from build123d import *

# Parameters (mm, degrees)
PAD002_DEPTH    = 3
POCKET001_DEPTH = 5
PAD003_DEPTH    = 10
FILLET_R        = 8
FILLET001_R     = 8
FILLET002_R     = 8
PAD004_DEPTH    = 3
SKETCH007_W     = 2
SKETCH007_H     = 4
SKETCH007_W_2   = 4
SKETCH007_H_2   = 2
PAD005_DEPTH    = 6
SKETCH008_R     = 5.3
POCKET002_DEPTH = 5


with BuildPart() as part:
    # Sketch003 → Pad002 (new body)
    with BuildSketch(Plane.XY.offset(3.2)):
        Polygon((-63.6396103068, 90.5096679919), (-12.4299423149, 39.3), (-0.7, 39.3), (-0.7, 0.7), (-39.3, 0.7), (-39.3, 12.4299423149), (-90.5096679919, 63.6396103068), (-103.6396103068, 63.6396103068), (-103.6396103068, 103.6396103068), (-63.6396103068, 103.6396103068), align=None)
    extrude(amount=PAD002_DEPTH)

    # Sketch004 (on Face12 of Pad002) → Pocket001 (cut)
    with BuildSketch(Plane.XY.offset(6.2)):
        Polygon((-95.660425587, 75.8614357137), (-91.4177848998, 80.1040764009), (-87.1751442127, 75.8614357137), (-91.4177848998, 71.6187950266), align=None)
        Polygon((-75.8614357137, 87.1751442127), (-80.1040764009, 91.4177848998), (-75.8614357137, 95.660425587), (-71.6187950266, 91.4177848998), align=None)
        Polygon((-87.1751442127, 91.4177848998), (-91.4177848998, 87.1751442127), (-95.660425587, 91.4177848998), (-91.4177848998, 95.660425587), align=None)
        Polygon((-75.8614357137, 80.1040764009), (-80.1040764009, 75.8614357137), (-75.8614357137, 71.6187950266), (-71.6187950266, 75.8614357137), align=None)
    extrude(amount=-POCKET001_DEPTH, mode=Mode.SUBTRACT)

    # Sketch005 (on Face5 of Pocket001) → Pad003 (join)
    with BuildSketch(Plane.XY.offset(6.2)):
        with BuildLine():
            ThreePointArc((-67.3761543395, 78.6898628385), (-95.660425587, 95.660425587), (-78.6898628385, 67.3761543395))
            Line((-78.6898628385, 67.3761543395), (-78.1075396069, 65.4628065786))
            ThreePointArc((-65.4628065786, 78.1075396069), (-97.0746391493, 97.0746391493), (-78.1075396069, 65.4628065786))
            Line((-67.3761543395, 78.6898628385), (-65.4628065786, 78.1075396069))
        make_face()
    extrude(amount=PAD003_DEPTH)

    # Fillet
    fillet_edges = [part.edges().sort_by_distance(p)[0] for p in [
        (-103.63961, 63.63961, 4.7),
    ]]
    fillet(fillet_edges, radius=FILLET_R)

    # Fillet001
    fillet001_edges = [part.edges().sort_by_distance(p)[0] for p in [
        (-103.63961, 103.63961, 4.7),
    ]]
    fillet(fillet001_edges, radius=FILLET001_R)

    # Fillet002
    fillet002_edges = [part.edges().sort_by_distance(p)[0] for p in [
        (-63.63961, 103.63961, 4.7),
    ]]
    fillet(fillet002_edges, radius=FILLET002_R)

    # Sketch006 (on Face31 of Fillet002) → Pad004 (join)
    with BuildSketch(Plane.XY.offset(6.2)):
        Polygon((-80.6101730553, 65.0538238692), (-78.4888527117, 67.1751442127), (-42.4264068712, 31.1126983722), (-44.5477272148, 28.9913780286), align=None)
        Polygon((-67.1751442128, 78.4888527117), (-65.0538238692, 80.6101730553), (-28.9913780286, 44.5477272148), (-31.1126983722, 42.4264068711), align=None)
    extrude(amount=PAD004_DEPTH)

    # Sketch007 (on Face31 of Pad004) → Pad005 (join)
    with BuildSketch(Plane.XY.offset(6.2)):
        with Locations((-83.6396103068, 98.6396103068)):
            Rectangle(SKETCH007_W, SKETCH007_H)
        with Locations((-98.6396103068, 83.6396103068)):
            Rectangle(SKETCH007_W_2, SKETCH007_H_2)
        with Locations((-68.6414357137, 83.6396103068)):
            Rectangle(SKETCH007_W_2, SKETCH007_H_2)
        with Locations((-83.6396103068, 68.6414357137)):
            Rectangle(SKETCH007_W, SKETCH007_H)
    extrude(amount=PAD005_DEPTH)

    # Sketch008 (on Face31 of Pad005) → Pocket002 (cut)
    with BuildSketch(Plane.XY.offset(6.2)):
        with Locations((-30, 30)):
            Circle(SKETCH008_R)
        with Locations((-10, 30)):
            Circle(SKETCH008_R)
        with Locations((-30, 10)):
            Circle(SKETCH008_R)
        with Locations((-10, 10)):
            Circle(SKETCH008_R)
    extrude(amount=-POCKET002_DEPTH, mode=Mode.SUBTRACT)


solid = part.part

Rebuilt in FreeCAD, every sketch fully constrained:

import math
import FreeCAD as App
import Part
import Sketcher
Q = App.Units.Quantity


def edges_at(feature, points):
    """Names of the edges that pass closest to the given points."""
    edges = feature.Shape.Edges
    near = lambda p: min(range(len(edges)), key=lambda i: edges[i].distToShape(Part.Vertex(*p))[0])
    return sorted({f"Edge{near(p) + 1}" for p in points})

doc = App.newDocument("Part")
body = doc.addObject("PartDesign::Body", "Body")

# Sketch on XY plane
sketch1 = body.newObject("Sketcher::SketchObject", "Sketch")
sketch1.AttachmentSupport = (doc.getObject("XY_Plane"), [""])
sketch1.MapMode = "FlatFace"
sketch1.AttachmentOffset = App.Placement(App.Vector(0, 0, 3.2), App.Rotation())
sketch1.addGeometry([
    Part.LineSegment(App.Vector(-12, 39, 0), App.Vector(-64, 91, 0)),  # 0
    Part.LineSegment(App.Vector(-64, 91, 0), App.Vector(-64, 104, 0)),  # 1
    Part.LineSegment(App.Vector(-64, 104, 0), App.Vector(-104, 104, 0)),  # 2
    Part.LineSegment(App.Vector(-104, 104, 0), App.Vector(-104, 64, 0)),  # 3
    Part.LineSegment(App.Vector(-104, 64, 0), App.Vector(-91, 64, 0)),  # 4
    Part.LineSegment(App.Vector(-91, 64, 0), App.Vector(-39, 12, 0)),  # 5
    Part.LineSegment(App.Vector(-39, 12, 0), App.Vector(-39, 1, 0)),  # 6
    Part.LineSegment(App.Vector(-39, 1, 0), App.Vector(-1, 1, 0)),  # 7
    Part.LineSegment(App.Vector(-1, 1, 0), App.Vector(-1, 39, 0)),  # 8
    Part.LineSegment(App.Vector(-1, 39, 0), App.Vector(-12, 39, 0)),  # 9
], False)
sketch1.addConstraint([
    Sketcher.Constraint("Coincident", 0, 2, 1, 1),
    Sketcher.Constraint("Coincident", 1, 2, 2, 1),
    Sketcher.Constraint("Coincident", 2, 2, 3, 1),
    Sketcher.Constraint("Coincident", 3, 2, 4, 1),
    Sketcher.Constraint("Coincident", 4, 2, 5, 1),
    Sketcher.Constraint("Coincident", 5, 2, 6, 1),
    Sketcher.Constraint("Coincident", 6, 2, 7, 1),
    Sketcher.Constraint("Coincident", 7, 2, 8, 1),
    Sketcher.Constraint("Coincident", 8, 2, 9, 1),
    Sketcher.Constraint("Coincident", 9, 2, 0, 1),
    Sketcher.Constraint("Vertical", 1),
    Sketcher.Constraint("Horizontal", 2),
    Sketcher.Constraint("Vertical", 3),
    Sketcher.Constraint("Horizontal", 4),
    Sketcher.Constraint("Vertical", 6),
    Sketcher.Constraint("Horizontal", 7),
    Sketcher.Constraint("Vertical", 8),
    Sketcher.Constraint("Horizontal", 9),
    Sketcher.Constraint("Parallel", 0, 5),
    Sketcher.Constraint("Equal", 4, 1),
    Sketcher.Constraint("Equal", 2, 3),
    Sketcher.Constraint("Equal", 9, 6),
    Sketcher.Constraint("Equal", 7, 8),
    Sketcher.Constraint("DistanceX", 2, 2, 2, 1, Q("40 mm")),
    Sketcher.Constraint("Angle", 0, Q("135 deg")),
    Sketcher.Constraint("DistanceX", 7, 1, 7, 2, Q("38.6 mm")),
    Sketcher.Constraint("DistanceX", 5, 2, -1, 1, Q("39.3 mm")),
    Sketcher.Constraint("DistanceY", -1, 1, 6, 2, Q("0.7 mm")),
    Sketcher.Constraint("DistanceX", 4, 1, 4, 2, Q("13.129942 mm")),
    Sketcher.Constraint("DistanceX", 0, 2, -1, 1, Q("63.63961 mm")),
])
pad1 = body.newObject("PartDesign::Pad", "Pad")
pad1.Profile = sketch1
pad1.Length = 3

# Sketch on XY plane
sketch2 = body.newObject("Sketcher::SketchObject", "Sketch001")
sketch2.AttachmentSupport = (doc.getObject("XY_Plane"), [""])
sketch2.MapMode = "FlatFace"
sketch2.AttachmentOffset = App.Placement(App.Vector(0, 0, 6.2), App.Rotation())
sketch2.addGeometry([
    Part.LineSegment(App.Vector(-91, 80, 0), App.Vector(-96, 76, 0)),  # 0
    Part.LineSegment(App.Vector(-96, 76, 0), App.Vector(-91, 72, 0)),  # 1
    Part.LineSegment(App.Vector(-91, 72, 0), App.Vector(-87, 76, 0)),  # 2
    Part.LineSegment(App.Vector(-87, 76, 0), App.Vector(-91, 80, 0)),  # 3
    Part.LineSegment(App.Vector(-80, 91, 0), App.Vector(-76, 87, 0)),  # 4
    Part.LineSegment(App.Vector(-76, 87, 0), App.Vector(-72, 91, 0)),  # 5
    Part.LineSegment(App.Vector(-72, 91, 0), App.Vector(-76, 96, 0)),  # 6
    Part.LineSegment(App.Vector(-76, 96, 0), App.Vector(-80, 91, 0)),  # 7
    Part.LineSegment(App.Vector(-91, 87, 0), App.Vector(-87, 91, 0)),  # 8
    Part.LineSegment(App.Vector(-87, 91, 0), App.Vector(-91, 96, 0)),  # 9
    Part.LineSegment(App.Vector(-91, 96, 0), App.Vector(-96, 91, 0)),  # 10
    Part.LineSegment(App.Vector(-96, 91, 0), App.Vector(-91, 87, 0)),  # 11
    Part.LineSegment(App.Vector(-76, 80, 0), App.Vector(-80, 76, 0)),  # 12
    Part.LineSegment(App.Vector(-80, 76, 0), App.Vector(-76, 72, 0)),  # 13
    Part.LineSegment(App.Vector(-76, 72, 0), App.Vector(-72, 76, 0)),  # 14
    Part.LineSegment(App.Vector(-72, 76, 0), App.Vector(-76, 80, 0)),  # 15
], False)
sketch2.addConstraint([
    Sketcher.Constraint("Coincident", 0, 2, 1, 1),
    Sketcher.Constraint("Coincident", 1, 2, 2, 1),
    Sketcher.Constraint("Coincident", 2, 2, 3, 1),
    Sketcher.Constraint("Coincident", 3, 2, 0, 1),
    Sketcher.Constraint("Coincident", 4, 2, 5, 1),
    Sketcher.Constraint("Coincident", 5, 2, 6, 1),
    Sketcher.Constraint("Coincident", 6, 2, 7, 1),
    Sketcher.Constraint("Coincident", 7, 2, 4, 1),
    Sketcher.Constraint("Coincident", 8, 2, 9, 1),
    Sketcher.Constraint("Coincident", 9, 2, 10, 1),
    Sketcher.Constraint("Coincident", 10, 2, 11, 1),
    Sketcher.Constraint("Coincident", 11, 2, 8, 1),
    Sketcher.Constraint("Coincident", 12, 2, 13, 1),
    Sketcher.Constraint("Coincident", 13, 2, 14, 1),
    Sketcher.Constraint("Coincident", 14, 2, 15, 1),
    Sketcher.Constraint("Coincident", 15, 2, 12, 1),
    Sketcher.Constraint("Perpendicular", 0, 1),
    Sketcher.Constraint("Perpendicular", 1, 2),
    Sketcher.Constraint("Perpendicular", 2, 3),
    Sketcher.Constraint("Parallel", 3, 4),
    Sketcher.Constraint("Perpendicular", 4, 5),
    Sketcher.Constraint("Perpendicular", 5, 6),
    Sketcher.Constraint("Perpendicular", 6, 7),
    Sketcher.Constraint("Parallel", 7, 8),
    Sketcher.Constraint("Perpendicular", 8, 9),
    Sketcher.Constraint("Perpendicular", 9, 10),
    Sketcher.Constraint("Perpendicular", 10, 11),
    Sketcher.Constraint("Perpendicular", 11, 12),
    Sketcher.Constraint("Perpendicular", 12, 13),
    Sketcher.Constraint("Perpendicular", 13, 14),
    Sketcher.Constraint("Perpendicular", 14, 15),
    Sketcher.Constraint("Horizontal", 0, 2, 2, 2),
    Sketcher.Constraint("Horizontal", 5, 2, 7, 2),
    Sketcher.Constraint("Horizontal", 7, 2, 8, 2),
    Sketcher.Constraint("Horizontal", 6, 2, 9, 2),
    Sketcher.Constraint("Horizontal", 8, 2, 10, 2),
    Sketcher.Constraint("Horizontal", 2, 2, 12, 2),
    Sketcher.Constraint("Horizontal", 1, 2, 13, 2),
    Sketcher.Constraint("Horizontal", 12, 2, 14, 2),
    Sketcher.Constraint("Vertical", 1, 2, 3, 2),
    Sketcher.Constraint("Vertical", 2, 2, 8, 2),
    Sketcher.Constraint("Vertical", 3, 2, 9, 2),
    Sketcher.Constraint("Vertical", 7, 2, 12, 2),
    Sketcher.Constraint("Distance", 0, Q("6 mm")),
    Sketcher.Constraint("DistanceX", 2, 2, 4, 2, Q("11.313708 mm")),
    Sketcher.Constraint("DistanceY", 2, 2, 4, 2, Q("11.313708 mm")),
    Sketcher.Constraint("DistanceX", 0, 2, -1, 1, Q("95.660426 mm")),
    Sketcher.Constraint("DistanceY", -1, 1, 0, 2, Q("75.861436 mm")),
])
pocket1 = body.newObject("PartDesign::Pocket", "Pocket")
pocket1.Profile = sketch2
pocket1.Length = 5

# Sketch on XY plane
sketch3 = body.newObject("Sketcher::SketchObject", "Sketch002")
sketch3.AttachmentSupport = (doc.getObject("XY_Plane"), [""])
sketch3.MapMode = "FlatFace"
sketch3.AttachmentOffset = App.Placement(App.Vector(0, 0, 6.2), App.Rotation())
sketch3.addGeometry([
    Part.ArcOfCircle(Part.Circle(App.Vector(-83.6, 83.6, 0), App.Vector(0, 0, 1), 17), math.radians(-17), math.radians(287)),
    Part.LineSegment(App.Vector(-67.4, 78.7, 0), App.Vector(-65.5, 78.1, 0)),
    Part.ArcOfCircle(Part.Circle(App.Vector(-83.6, 83.6, 0), App.Vector(0, 0, 1), 19), math.radians(-17), math.radians(287)),
    Part.LineSegment(App.Vector(-78.1, 65.5, 0), App.Vector(-78.7, 67.4, 0)),
], False)
sketch3.addConstraint([
    Sketcher.Constraint("Coincident", 0, 1, 1, 1),
    Sketcher.Constraint("Coincident", 1, 2, 2, 1),
    Sketcher.Constraint("Coincident", 2, 2, 3, 1),
    Sketcher.Constraint("Coincident", 3, 2, 0, 2),
    Sketcher.Constraint("Coincident", 2, 3, 0, 3),
    Sketcher.Constraint("Radius", 0, Q("17 mm")),
    Sketcher.Constraint("Radius", 2, Q("19 mm")),
    Sketcher.Constraint("DistanceX", 0, 3, -1, 1, Q("83.63961 mm")),
    Sketcher.Constraint("DistanceY", -1, 1, 0, 3, Q("83.63961 mm")),
    Sketcher.Constraint("DistanceY", -1, 1, 1, 2, Q("78.10754 mm")),
    Sketcher.Constraint("DistanceX", 2, 2, -1, 1, Q("78.10754 mm")),
    Sketcher.Constraint("DistanceX", 3, 2, 0, 1, Q("11.313708 mm")),
    Sketcher.Constraint("DistanceY", 3, 2, 0, 1, Q("11.313708 mm")),
])
pad2 = body.newObject("PartDesign::Pad", "Pad001")
pad2.Profile = sketch3
pad2.Length = 10
doc.recompute()

fillet = body.newObject("PartDesign::Fillet", "Fillet")
fillet.Base = (pad2, edges_at(pad2, [(-103.64, 63.64, 4.7)]))
fillet.Radius = 8
doc.recompute()

fillet2 = body.newObject("PartDesign::Fillet", "Fillet001")
fillet2.Base = (fillet, edges_at(fillet, [(-103.64, 103.64, 4.7)]))
fillet2.Radius = 8
doc.recompute()

fillet3 = body.newObject("PartDesign::Fillet", "Fillet002")
fillet3.Base = (fillet2, edges_at(fillet2, [(-63.64, 103.64, 4.7)]))
fillet3.Radius = 8

# Sketch on XY plane
sketch4 = body.newObject("Sketcher::SketchObject", "Sketch003")
sketch4.AttachmentSupport = (doc.getObject("XY_Plane"), [""])
sketch4.MapMode = "FlatFace"
sketch4.AttachmentOffset = App.Placement(App.Vector(0, 0, 6.2), App.Rotation())
sketch4.addGeometry([
    Part.LineSegment(App.Vector(-78.5, 67.2, 0), App.Vector(-80.6, 65.1, 0)),  # 0
    Part.LineSegment(App.Vector(-80.6, 65.1, 0), App.Vector(-44.5, 29, 0)),  # 1
    Part.LineSegment(App.Vector(-44.5, 29, 0), App.Vector(-42.4, 31.1, 0)),  # 2
    Part.LineSegment(App.Vector(-42.4, 31.1, 0), App.Vector(-78.5, 67.2, 0)),  # 3
    Part.LineSegment(App.Vector(-65.1, 80.6, 0), App.Vector(-67.2, 78.5, 0)),  # 4
    Part.LineSegment(App.Vector(-67.2, 78.5, 0), App.Vector(-31.1, 42.4, 0)),  # 5
    Part.LineSegment(App.Vector(-31.1, 42.4, 0), App.Vector(-29, 44.5, 0)),  # 6
    Part.LineSegment(App.Vector(-29, 44.5, 0), App.Vector(-65.1, 80.6, 0)),  # 7
], False)
sketch4.addConstraint([
    Sketcher.Constraint("Coincident", 0, 2, 1, 1),
    Sketcher.Constraint("Coincident", 1, 2, 2, 1),
    Sketcher.Constraint("Coincident", 2, 2, 3, 1),
    Sketcher.Constraint("Coincident", 3, 2, 0, 1),
    Sketcher.Constraint("Coincident", 4, 2, 5, 1),
    Sketcher.Constraint("Coincident", 5, 2, 6, 1),
    Sketcher.Constraint("Coincident", 6, 2, 7, 1),
    Sketcher.Constraint("Coincident", 7, 2, 4, 1),
    Sketcher.Constraint("Perpendicular", 0, 1),
    Sketcher.Constraint("Perpendicular", 1, 2),
    Sketcher.Constraint("Perpendicular", 2, 3),
    Sketcher.Constraint("Perpendicular", 3, 4),
    Sketcher.Constraint("Perpendicular", 4, 5),
    Sketcher.Constraint("Perpendicular", 5, 6),
    Sketcher.Constraint("Perpendicular", 6, 7),
    Sketcher.Constraint("Equal", 2, 4),
    Sketcher.Constraint("Equal", 3, 5),
    Sketcher.Constraint("Angle", 0, Q("-135 deg")),
    Sketcher.Constraint("Distance", 0, Q("3 mm")),
    Sketcher.Constraint("Distance", 1, Q("51 mm")),
    Sketcher.Constraint("DistanceY", -1, 1, 2, 2, Q("31.112698 mm")),
    Sketcher.Constraint("DistanceX", 5, 2, -1, 1, Q("31.112698 mm")),
    Sketcher.Constraint("DistanceX", 3, 2, 4, 2, Q("11.313708 mm")),
    Sketcher.Constraint("DistanceY", 3, 2, 4, 2, Q("11.313708 mm")),
])
pad3 = body.newObject("PartDesign::Pad", "Pad002")
pad3.Profile = sketch4
pad3.Length = 3

# Sketch on XY plane
sketch5 = body.newObject("Sketcher::SketchObject", "Sketch004")
sketch5.AttachmentSupport = (doc.getObject("XY_Plane"), [""])
sketch5.MapMode = "FlatFace"
sketch5.AttachmentOffset = App.Placement(App.Vector(0, 0, 6.2), App.Rotation())
sketch5.addGeometry([
    Part.LineSegment(App.Vector(-84.6, 100.6, 0), App.Vector(-84.6, 96.6, 0)),  # 0
    Part.LineSegment(App.Vector(-84.6, 96.6, 0), App.Vector(-82.6, 96.6, 0)),  # 1
    Part.LineSegment(App.Vector(-82.6, 96.6, 0), App.Vector(-82.6, 100.6, 0)),  # 2
    Part.LineSegment(App.Vector(-82.6, 100.6, 0), App.Vector(-84.6, 100.6, 0)),  # 3
    Part.LineSegment(App.Vector(-100.6, 84.6, 0), App.Vector(-100.6, 82.6, 0)),  # 4
    Part.LineSegment(App.Vector(-100.6, 82.6, 0), App.Vector(-96.6, 82.6, 0)),  # 5
    Part.LineSegment(App.Vector(-96.6, 82.6, 0), App.Vector(-96.6, 84.6, 0)),  # 6
    Part.LineSegment(App.Vector(-96.6, 84.6, 0), App.Vector(-100.6, 84.6, 0)),  # 7
    Part.LineSegment(App.Vector(-70.6, 84.6, 0), App.Vector(-70.6, 82.6, 0)),  # 8
    Part.LineSegment(App.Vector(-70.6, 82.6, 0), App.Vector(-66.6, 82.6, 0)),  # 9
    Part.LineSegment(App.Vector(-66.6, 82.6, 0), App.Vector(-66.6, 84.6, 0)),  # 10
    Part.LineSegment(App.Vector(-66.6, 84.6, 0), App.Vector(-70.6, 84.6, 0)),  # 11
    Part.LineSegment(App.Vector(-84.6, 70.6, 0), App.Vector(-84.6, 66.6, 0)),  # 12
    Part.LineSegment(App.Vector(-84.6, 66.6, 0), App.Vector(-82.6, 66.6, 0)),  # 13
    Part.LineSegment(App.Vector(-82.6, 66.6, 0), App.Vector(-82.6, 70.6, 0)),  # 14
    Part.LineSegment(App.Vector(-82.6, 70.6, 0), App.Vector(-84.6, 70.6, 0)),  # 15
], False)
sketch5.addConstraint([
    Sketcher.Constraint("Coincident", 0, 2, 1, 1),
    Sketcher.Constraint("Coincident", 1, 2, 2, 1),
    Sketcher.Constraint("Coincident", 2, 2, 3, 1),
    Sketcher.Constraint("Coincident", 3, 2, 0, 1),
    Sketcher.Constraint("Coincident", 4, 2, 5, 1),
    Sketcher.Constraint("Coincident", 5, 2, 6, 1),
    Sketcher.Constraint("Coincident", 6, 2, 7, 1),
    Sketcher.Constraint("Coincident", 7, 2, 4, 1),
    Sketcher.Constraint("Coincident", 8, 2, 9, 1),
    Sketcher.Constraint("Coincident", 9, 2, 10, 1),
    Sketcher.Constraint("Coincident", 10, 2, 11, 1),
    Sketcher.Constraint("Coincident", 11, 2, 8, 1),
    Sketcher.Constraint("Coincident", 12, 2, 13, 1),
    Sketcher.Constraint("Coincident", 13, 2, 14, 1),
    Sketcher.Constraint("Coincident", 14, 2, 15, 1),
    Sketcher.Constraint("Coincident", 15, 2, 12, 1),
    Sketcher.Constraint("Vertical", 0),
    Sketcher.Constraint("Horizontal", 1),
    Sketcher.Constraint("Vertical", 2),
    Sketcher.Constraint("Horizontal", 3),
    Sketcher.Constraint("Vertical", 4),
    Sketcher.Constraint("Horizontal", 5),
    Sketcher.Constraint("Vertical", 6),
    Sketcher.Constraint("Horizontal", 7),
    Sketcher.Constraint("Vertical", 8),
    Sketcher.Constraint("Horizontal", 9),
    Sketcher.Constraint("Vertical", 10),
    Sketcher.Constraint("Horizontal", 11),
    Sketcher.Constraint("Vertical", 12),
    Sketcher.Constraint("Horizontal", 13),
    Sketcher.Constraint("Vertical", 14),
    Sketcher.Constraint("Horizontal", 15),
    Sketcher.Constraint("Horizontal", 5, 2, 8, 2),
    Sketcher.Constraint("Horizontal", 7, 2, 10, 2),
    Sketcher.Constraint("Vertical", 3, 2, 12, 2),
    Sketcher.Constraint("Vertical", 2, 2, 13, 2),
    Sketcher.Constraint("Equal", 7, 9),
    Sketcher.Constraint("Equal", 11, 0),
    Sketcher.Constraint("Equal", 15, 4),
    Sketcher.Constraint("Equal", 2, 12),
    Sketcher.Constraint("DistanceX", 1, 1, 1, 2, Q("2 mm")),
    Sketcher.Constraint("DistanceX", 5, 1, 5, 2, Q("4 mm")),
    Sketcher.Constraint("DistanceX", 4, 2, 0, 2, Q("16 mm")),
    Sketcher.Constraint("DistanceY", 4, 2, 0, 2, Q("14 mm")),
    Sketcher.Constraint("DistanceX", 0, 2, -1, 1, Q("84.63961 mm")),
    Sketcher.Constraint("DistanceY", -1, 1, 0, 2, Q("96.63961 mm")),
    Sketcher.Constraint("DistanceX", 8, 2, -1, 1, Q("70.641436 mm")),
    Sketcher.Constraint("DistanceY", -1, 1, 12, 2, Q("66.641436 mm")),
])
pad4 = body.newObject("PartDesign::Pad", "Pad003")
pad4.Profile = sketch5
pad4.Length = 6

# Sketch on XY plane
sketch6 = body.newObject("Sketcher::SketchObject", "Sketch005")
sketch6.AttachmentSupport = (doc.getObject("XY_Plane"), [""])
sketch6.MapMode = "FlatFace"
sketch6.AttachmentOffset = App.Placement(App.Vector(0, 0, 6.2), App.Rotation())
sketch6.addGeometry([
    Part.Circle(App.Vector(-30, 30, 0), App.Vector(0, 0, 1), 5),
    Part.Circle(App.Vector(-10, 30, 0), App.Vector(0, 0, 1), 5),
    Part.Circle(App.Vector(-30, 10, 0), App.Vector(0, 0, 1), 5),
    Part.Circle(App.Vector(-10, 10, 0), App.Vector(0, 0, 1), 5),
], False)
sketch6.addConstraint([
    Sketcher.Constraint("Equal", 0, 1),
    Sketcher.Constraint("Equal", 1, 2),
    Sketcher.Constraint("Equal", 2, 3),
    Sketcher.Constraint("Horizontal", 0, 3, 1, 3),
    Sketcher.Constraint("Horizontal", 2, 3, 3, 3),
    Sketcher.Constraint("Vertical", 0, 3, 2, 3),
    Sketcher.Constraint("Vertical", 1, 3, 3, 3),
    Sketcher.Constraint("Diameter", 0, Q("10.6 mm")),
    Sketcher.Constraint("DistanceX", 0, 3, -1, 1, Q("30 mm")),
    Sketcher.Constraint("DistanceY", -1, 1, 0, 3, Q("30 mm")),
    Sketcher.Constraint("DistanceX", 1, 3, -1, 1, Q("10 mm")),
    Sketcher.Constraint("DistanceY", -1, 1, 2, 3, Q("10 mm")),
])
pocket2 = body.newObject("PartDesign::Pocket", "Pocket001")
pocket2.Profile = sketch6
pocket2.Length = 5

doc.recompute()
